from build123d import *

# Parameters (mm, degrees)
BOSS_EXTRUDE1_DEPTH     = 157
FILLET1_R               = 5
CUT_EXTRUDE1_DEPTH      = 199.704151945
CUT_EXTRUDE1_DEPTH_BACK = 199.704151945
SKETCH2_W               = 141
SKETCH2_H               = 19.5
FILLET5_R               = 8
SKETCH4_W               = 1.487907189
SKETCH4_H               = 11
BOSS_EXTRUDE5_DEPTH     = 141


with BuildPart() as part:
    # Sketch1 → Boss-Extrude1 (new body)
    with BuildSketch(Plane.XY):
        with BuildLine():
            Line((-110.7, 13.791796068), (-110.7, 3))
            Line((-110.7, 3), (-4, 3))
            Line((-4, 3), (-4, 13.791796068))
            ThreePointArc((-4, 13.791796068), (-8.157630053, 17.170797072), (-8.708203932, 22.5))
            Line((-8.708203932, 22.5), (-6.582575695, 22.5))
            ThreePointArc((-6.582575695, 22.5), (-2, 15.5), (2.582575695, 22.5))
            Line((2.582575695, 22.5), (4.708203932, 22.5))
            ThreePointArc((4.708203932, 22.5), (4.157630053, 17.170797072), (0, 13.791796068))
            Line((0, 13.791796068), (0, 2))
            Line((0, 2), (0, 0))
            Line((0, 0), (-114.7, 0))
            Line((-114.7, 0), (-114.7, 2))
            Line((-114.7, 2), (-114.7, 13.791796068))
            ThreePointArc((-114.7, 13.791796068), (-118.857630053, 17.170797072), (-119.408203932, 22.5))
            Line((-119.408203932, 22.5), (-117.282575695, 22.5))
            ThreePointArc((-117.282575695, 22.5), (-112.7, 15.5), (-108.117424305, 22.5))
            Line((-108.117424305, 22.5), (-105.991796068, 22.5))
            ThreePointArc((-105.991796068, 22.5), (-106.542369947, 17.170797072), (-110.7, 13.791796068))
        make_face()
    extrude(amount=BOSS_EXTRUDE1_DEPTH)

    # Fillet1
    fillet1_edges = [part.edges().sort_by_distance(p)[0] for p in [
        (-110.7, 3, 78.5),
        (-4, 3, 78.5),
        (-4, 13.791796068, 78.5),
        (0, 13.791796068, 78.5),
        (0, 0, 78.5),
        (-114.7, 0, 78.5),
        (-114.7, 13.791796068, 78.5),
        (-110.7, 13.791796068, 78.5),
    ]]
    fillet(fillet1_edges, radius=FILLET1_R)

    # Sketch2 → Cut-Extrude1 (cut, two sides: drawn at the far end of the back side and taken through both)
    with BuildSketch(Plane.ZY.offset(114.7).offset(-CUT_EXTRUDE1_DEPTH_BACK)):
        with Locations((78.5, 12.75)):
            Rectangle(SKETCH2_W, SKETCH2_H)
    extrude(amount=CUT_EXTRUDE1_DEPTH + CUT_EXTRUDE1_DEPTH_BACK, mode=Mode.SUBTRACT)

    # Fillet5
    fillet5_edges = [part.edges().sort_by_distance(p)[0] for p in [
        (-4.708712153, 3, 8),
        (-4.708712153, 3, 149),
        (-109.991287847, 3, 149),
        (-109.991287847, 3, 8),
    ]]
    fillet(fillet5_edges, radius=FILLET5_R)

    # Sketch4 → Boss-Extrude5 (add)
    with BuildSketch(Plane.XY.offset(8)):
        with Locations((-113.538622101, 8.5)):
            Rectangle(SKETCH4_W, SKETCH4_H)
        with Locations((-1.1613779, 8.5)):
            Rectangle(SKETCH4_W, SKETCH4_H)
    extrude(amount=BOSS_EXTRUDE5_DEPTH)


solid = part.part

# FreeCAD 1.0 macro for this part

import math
import FreeCAD as App
import Part
import Sketcher
Q = App.Units.Quantity


def edges_at(feature, points):
    """Names of the edges that pass closest to the given points."""
    edges = feature.Shape.Edges
    near = lambda p: min(range(len(edges)), key=lambda i: edges[i].distToShape(Part.Vertex(*p))[0])
    return sorted({f"Edge{near(p) + 1}" for p in points})

doc = App.newDocument("Part")
body = doc.addObject("PartDesign::Body", "Body")

# Sketch on XY plane
sketch1 = body.newObject("Sketcher::SketchObject", "Sketch")
sketch1.AttachmentSupport = (doc.getObject("XY_Plane"), [""])
sketch1.MapMode = "FlatFace"
sketch1.addGeometry(Part.LineSegment(App.Vector(-110.7, 3, 0), App.Vector(-110.7, 13.8, 0)), False)
sketch1.addGeometry(Part.ArcOfCircle(Part.Circle(App.Vector(-112.7, 20.5, 0), App.Vector(0, 0, 1), 7), math.radians(-73), math.radians(17)), False)
sketch1.addGeometry(Part.LineSegment(App.Vector(-106, 22.5, 0), App.Vector(-108.1, 22.5, 0)), False)
sketch1.addGeometry(Part.ArcOfCircle(Part.Circle(App.Vector(-112.7, 20.5, 0), App.Vector(0, 0, 1), 5), math.radians(156), math.radians(384)), False)
sketch1.addGeometry(Part.LineSegment(App.Vector(-117.3, 22.5, 0), App.Vector(-119.4, 22.5, 0)), False)
sketch1.addGeometry(Part.ArcOfCircle(Part.Circle(App.Vector(-112.7, 20.5, 0), App.Vector(0, 0, 1), 7), math.radians(163), math.radians(253)), False)
sketch1.addGeometry(Part.LineSegment(App.Vector(-114.7, 13.8, 0), App.Vector(-114.7, 0, 0)), False)
sketch1.addGeometry(Part.LineSegment(App.Vector(-114.7, 0, 0), App.Vector(0, 0, 0)), False)
sketch1.addGeometry(Part.LineSegment(App.Vector(0, 0, 0), App.Vector(0, 13.8, 0)), False)
sketch1.addGeometry(Part.ArcOfCircle(Part.Circle(App.Vector(-2, 20.5, 0), App.Vector(0, 0, 1), 7), math.radians(-73), math.radians(17)), False)
sketch1.addGeometry(Part.LineSegment(App.Vector(4.7, 22.5, 0), App.Vector(2.6, 22.5, 0)), False)
sketch1.addGeometry(Part.ArcOfCircle(Part.Circle(App.Vector(-2, 20.5, 0), App.Vector(0, 0, 1), 5), math.radians(156), math.radians(384)), False)
sketch1.addGeometry(Part.LineSegment(App.Vector(-6.6, 22.5, 0), App.Vector(-8.7, 22.5, 0)), False)
sketch1.addGeometry(Part.ArcOfCircle(Part.Circle(App.Vector(-2, 20.5, 0), App.Vector(0, 0, 1), 7), math.radians(163), math.radians(253)), False)
sketch1.addGeometry(Part.LineSegment(App.Vector(-4, 13.8, 0), App.Vector(-4, 3, 0)), False)
sketch1.addGeometry(Part.LineSegment(App.Vector(-4, 3, 0), App.Vector(-110.7, 3, 0)), False)
sketch1.addConstraint(Sketcher.Constraint("Coincident", 0, 2, 1, 1))
sketch1.addConstraint(Sketcher.Constraint("Coincident", 1, 2, 2, 1))
sketch1.addConstraint(Sketcher.Constraint("Coincident", 2, 2, 3, 2))
sketch1.addConstraint(Sketcher.Constraint("Coincident", 3, 1, 4, 1))
sketch1.addConstraint(Sketcher.Constraint("Coincident", 4, 2, 5, 1))
sketch1.addConstraint(Sketcher.Constraint("Coincident", 5, 2, 6, 1))
sketch1.addConstraint(Sketcher.Constraint("Coincident", 6, 2, 7, 1))
sketch1.addConstraint(Sketcher.Constraint("Coincident", 7, 2, 8, 1))
sketch1.addConstraint(Sketcher.Constraint("Coincident", 8, 2, 9, 1))
sketch1.addConstraint(Sketcher.Constraint("Coincident", 9, 2, 10, 1))
sketch1.addConstraint(Sketcher.Constraint("Coincident", 10, 2, 11, 2))
sketch1.addConstraint(Sketcher.Constraint("Coincident", 11, 1, 12, 1))
sketch1.addConstraint(Sketcher.Constraint("Coincident", 12, 2, 13, 1))
sketch1.addConstraint(Sketcher.Constraint("Coincident", 13, 2, 14, 1))
sketch1.addConstraint(Sketcher.Constraint("Coincident", 14, 2, 15, 1))
sketch1.addConstraint(Sketcher.Constraint("Coincident", 15, 2, 0, 1))
sketch1.addConstraint(Sketcher.Constraint("Vertical", 0))
sketch1.addConstraint(Sketcher.Constraint("Horizontal", 2))
sketch1.addConstraint(Sketcher.Constraint("Horizontal", 4))
sketch1.addConstraint(Sketcher.Constraint("Vertical", 6))
sketch1.addConstraint(Sketcher.Constraint("Horizontal", 7))
sketch1.addConstraint(Sketcher.Constraint("Vertical", 8))
sketch1.addConstraint(Sketcher.Constraint("Horizontal", 10))
sketch1.addConstraint(Sketcher.Constraint("Horizontal", 12))
sketch1.addConstraint(Sketcher.Constraint("Vertical", 14))
sketch1.addConstraint(Sketcher.Constraint("Horizontal", 15))
sketch1.addConstraint(Sketcher.Constraint("Coincident", 7, 2, -1, 1))
sketch1.addConstraint(Sketcher.Constraint("Coincident", 3, 3, 1, 3))
sketch1.addConstraint(Sketcher.Constraint("Coincident", 5, 3, 1, 3))
sketch1.addConstraint(Sketcher.Constraint("Coincident", 11, 3, 9, 3))
sketch1.addConstraint(Sketcher.Constraint("Coincident", 13, 3, 9, 3))
sketch1.addConstraint(Sketcher.Constraint("Equal", 1, 5))
sketch1.addConstraint(Sketcher.Constraint("Equal", 5, 9))
sketch1.addConstraint(Sketcher.Constraint("Equal", 3, 11))
sketch1.addConstraint(Sketcher.Constraint("Equal", 9, 13))
sketch1.addConstraint(Sketcher.Constraint("Horizontal", 5, 3, 9, 3))
sketch1.addConstraint(Sketcher.Constraint("Horizontal", 2, 2, 3, 1))
sketch1.addConstraint(Sketcher.Constraint("Horizontal", 0, 2, 5, 2))
sketch1.addConstraint(Sketcher.Constraint("Horizontal", 5, 2, 8, 2))
sketch1.addConstraint(Sketcher.Constraint("Horizontal", 4, 2, 9, 2))
sketch1.addConstraint(Sketcher.Constraint("Horizontal", 10, 2, 11, 1))
sketch1.addConstraint(Sketcher.Constraint("Horizontal", 8, 2, 13, 2))
sketch1.addConstraint(Sketcher.Constraint("Radius", 1, Q("7 mm")))
sketch1.addConstraint(Sketcher.Constraint("Radius", 3, Q("5 mm")))
sketch1.addConstraint(Sketcher.Constraint("DistanceX", 7, 1, 7, 2, Q("114.7 mm")))
sketch1.addConstraint(Sketcher.Constraint("DistanceX", 15, 2, 15, 1, Q("106.7 mm")))
sketch1.addConstraint(Sketcher.Constraint("DistanceY", -1, 1, 14, 2, Q("3 mm")))
sketch1.addConstraint(Sketcher.Constraint("DistanceY", 1, 3, 1, 2, Q("2 mm")))
sketch1.addConstraint(Sketcher.Constraint("DistanceY", -1, 1, 1, 3, Q("20.5 mm")))
pad1 = body.newObject("PartDesign::Pad", "Pad")
pad1.Profile = sketch1
pad1.Length = 157
doc.recompute()

fillet = body.newObject("PartDesign::Fillet", "Fillet")
fillet.Base = (pad1, edges_at(pad1, [
    (-110.7, 3, 78.5),
    (-4, 3, 78.5),
    (-4, 13.792, 78.5),
    (0, 13.792, 78.5),
    (0, 0, 78.5),
    (-114.7, 0, 78.5),
    (-114.7, 13.792, 78.5),
    (-110.7, 13.792, 78.5),
]))
fillet.Radius = 5

# Sketch on YZ plane
sketch2 = body.newObject("Sketcher::SketchObject", "Sketch001")
sketch2.AttachmentSupport = (doc.getObject("YZ_Plane"), [""])
sketch2.MapMode = "FlatFace"
sketch2.AttachmentOffset = App.Placement(App.Vector(0, 0, -114.7), App.Rotation())
sketch2.addGeometry(Part.LineSegment(App.Vector(22, 8, 0), App.Vector(3, 8, 0)), False)
sketch2.addGeometry(Part.LineSegment(App.Vector(3, 8, 0), App.Vector(3, 149, 0)), False)
sketch2.addGeometry(Part.LineSegment(App.Vector(3, 149, 0), App.Vector(22, 149, 0)), False)
sketch2.addGeometry(Part.LineSegment(App.Vector(22, 149, 0), App.Vector(22, 8, 0)), False)
sketch2.addConstraint(Sketcher.Constraint("Coincident", 0, 2, 1, 1))
sketch2.addConstraint(Sketcher.Constraint("Coincident", 1, 2, 2, 1))
sketch2.addConstraint(Sketcher.Constraint("Coincident", 2, 2, 3, 1))
sketch2.addConstraint(Sketcher.Constraint("Coincident", 3, 2, 0, 1))
sketch2.addConstraint(Sketcher.Constraint("Horizontal", 0))
sketch2.addConstraint(Sketcher.Constraint("Vertical", 1))
sketch2.addConstraint(Sketcher.Constraint("Horizontal", 2))
sketch2.addConstraint(Sketcher.Constraint("Vertical", 3))
sketch2.addConstraint(Sketcher.Constraint("DistanceY", 1, 1, 1, 2, Q("141 mm")))
sketch2.addConstraint(Sketcher.Constraint("DistanceX", 0, 2, 0, 1, Q("19.5 mm")))
sketch2.addConstraint(Sketcher.Constraint("DistanceX", -1, 1, 0, 2, Q("3 mm")))
sketch2.addConstraint(Sketcher.Constraint("DistanceY", -1, 1, 0, 2, Q("8 mm")))
pocket1 = body.newObject("PartDesign::Pocket", "Pocket")
pocket1.Profile = sketch2
pocket1.Type = "ThroughAll"
pocket1.Midplane = True
doc.recompute()

fillet2 = body.newObject("PartDesign::Fillet", "Fillet001")
fillet2.Base = (pocket1, edges_at(pocket1, [
    (-4.709, 3, 8),
    (-4.709, 3, 149),
    (-109.991, 3, 149),
    (-109.991, 3, 8),
]))
fillet2.Radius = 8

# Sketch on XY plane
sketch3 = body.newObject("Sketcher::SketchObject", "Sketch002")
sketch3.AttachmentSupport = (doc.getObject("XY_Plane"), [""])
sketch3.MapMode = "FlatFace"
sketch3.AttachmentOffset = App.Placement(App.Vector(0, 0, 8), App.Rotation())
sketch3.addGeometry(Part.LineSegment(App.Vector(-114.3, 14, 0), App.Vector(-114.3, 3, 0)), False)
sketch3.addGeometry(Part.LineSegment(App.Vector(-114.3, 3, 0), App.Vector(-112.8, 3, 0)), False)
sketch3.addGeometry(Part.LineSegment(App.Vector(-112.8, 3, 0), App.Vector(-112.8, 14, 0)), False)
sketch3.addGeometry(Part.LineSegment(App.Vector(-112.8, 14, 0), App.Vector(-114.3, 14, 0)), False)
sketch3.addGeometry(Part.LineSegment(App.Vector(-1.9, 14, 0), App.Vector(-1.9, 3, 0)), False)
sketch3.addGeometry(Part.LineSegment(App.Vector(-1.9, 3, 0), App.Vector(-0.4, 3, 0)), False)
sketch3.addGeometry(Part.LineSegment(App.Vector(-0.4, 3, 0), App.Vector(-0.4, 14, 0)), False)
sketch3.addGeometry(Part.LineSegment(App.Vector(-0.4, 14, 0), App.Vector(-1.9, 14, 0)), False)
sketch3.addConstraint(Sketcher.Constraint("Coincident", 0, 2, 1, 1))
sketch3.addConstraint(Sketcher.Constraint("Coincident", 1, 2, 2, 1))
sketch3.addConstraint(Sketcher.Constraint("Coincident", 2, 2, 3, 1))
sketch3.addConstraint(Sketcher.Constraint("Coincident", 3, 2, 0, 1))
sketch3.addConstraint(Sketcher.Constraint("Coincident", 4, 2, 5, 1))
sketch3.addConstraint(Sketcher.Constraint("Coincident", 5, 2, 6, 1))
sketch3.addConstraint(Sketcher.Constraint("Coincident", 6, 2, 7, 1))
sketch3.addConstraint(Sketcher.Constraint("Coincident", 7, 2, 4, 1))
sketch3.addConstraint(Sketcher.Constraint("Vertical", 0))
sketch3.addConstraint(Sketcher.Constraint("Horizontal", 1))
sketch3.addConstraint(Sketcher.Constraint("Vertical", 2))
sketch3.addConstraint(Sketcher.Constraint("Horizontal", 3))
sketch3.addConstraint(Sketcher.Constraint("Vertical", 4))
sketch3.addConstraint(Sketcher.Constraint("Horizontal", 5))
sketch3.addConstraint(Sketcher.Constraint("Vertical", 6))
sketch3.addConstraint(Sketcher.Constraint("Horizontal", 7))
sketch3.addConstraint(Sketcher.Constraint("Horizontal", 1, 2, 4, 2))
sketch3.addConstraint(Sketcher.Constraint("Horizontal", 3, 2, 6, 2))
sketch3.addConstraint(Sketcher.Constraint("Equal", 3, 5))
sketch3.addConstraint(Sketcher.Constraint("DistanceY", 0, 2, 0, 1, Q("11 mm")))
sketch3.addConstraint(Sketcher.Constraint("DistanceY", -1, 1, 0, 2, Q("3 mm")))
sketch3.addConstraint(Sketcher.Constraint("DistanceX", 1, 1, 1, 2, Q("1.487907 mm")))
sketch3.addConstraint(Sketcher.Constraint("DistanceX", 1, 2, -1, 1, Q("112.794669 mm")))
sketch3.addConstraint(Sketcher.Constraint("DistanceX", 4, 2, -1, 1, Q("1.905331 mm")))
pad2 = body.newObject("PartDesign::Pad", "Pad001")
pad2.Profile = sketch3
pad2.Length = 141

doc.recompute()
